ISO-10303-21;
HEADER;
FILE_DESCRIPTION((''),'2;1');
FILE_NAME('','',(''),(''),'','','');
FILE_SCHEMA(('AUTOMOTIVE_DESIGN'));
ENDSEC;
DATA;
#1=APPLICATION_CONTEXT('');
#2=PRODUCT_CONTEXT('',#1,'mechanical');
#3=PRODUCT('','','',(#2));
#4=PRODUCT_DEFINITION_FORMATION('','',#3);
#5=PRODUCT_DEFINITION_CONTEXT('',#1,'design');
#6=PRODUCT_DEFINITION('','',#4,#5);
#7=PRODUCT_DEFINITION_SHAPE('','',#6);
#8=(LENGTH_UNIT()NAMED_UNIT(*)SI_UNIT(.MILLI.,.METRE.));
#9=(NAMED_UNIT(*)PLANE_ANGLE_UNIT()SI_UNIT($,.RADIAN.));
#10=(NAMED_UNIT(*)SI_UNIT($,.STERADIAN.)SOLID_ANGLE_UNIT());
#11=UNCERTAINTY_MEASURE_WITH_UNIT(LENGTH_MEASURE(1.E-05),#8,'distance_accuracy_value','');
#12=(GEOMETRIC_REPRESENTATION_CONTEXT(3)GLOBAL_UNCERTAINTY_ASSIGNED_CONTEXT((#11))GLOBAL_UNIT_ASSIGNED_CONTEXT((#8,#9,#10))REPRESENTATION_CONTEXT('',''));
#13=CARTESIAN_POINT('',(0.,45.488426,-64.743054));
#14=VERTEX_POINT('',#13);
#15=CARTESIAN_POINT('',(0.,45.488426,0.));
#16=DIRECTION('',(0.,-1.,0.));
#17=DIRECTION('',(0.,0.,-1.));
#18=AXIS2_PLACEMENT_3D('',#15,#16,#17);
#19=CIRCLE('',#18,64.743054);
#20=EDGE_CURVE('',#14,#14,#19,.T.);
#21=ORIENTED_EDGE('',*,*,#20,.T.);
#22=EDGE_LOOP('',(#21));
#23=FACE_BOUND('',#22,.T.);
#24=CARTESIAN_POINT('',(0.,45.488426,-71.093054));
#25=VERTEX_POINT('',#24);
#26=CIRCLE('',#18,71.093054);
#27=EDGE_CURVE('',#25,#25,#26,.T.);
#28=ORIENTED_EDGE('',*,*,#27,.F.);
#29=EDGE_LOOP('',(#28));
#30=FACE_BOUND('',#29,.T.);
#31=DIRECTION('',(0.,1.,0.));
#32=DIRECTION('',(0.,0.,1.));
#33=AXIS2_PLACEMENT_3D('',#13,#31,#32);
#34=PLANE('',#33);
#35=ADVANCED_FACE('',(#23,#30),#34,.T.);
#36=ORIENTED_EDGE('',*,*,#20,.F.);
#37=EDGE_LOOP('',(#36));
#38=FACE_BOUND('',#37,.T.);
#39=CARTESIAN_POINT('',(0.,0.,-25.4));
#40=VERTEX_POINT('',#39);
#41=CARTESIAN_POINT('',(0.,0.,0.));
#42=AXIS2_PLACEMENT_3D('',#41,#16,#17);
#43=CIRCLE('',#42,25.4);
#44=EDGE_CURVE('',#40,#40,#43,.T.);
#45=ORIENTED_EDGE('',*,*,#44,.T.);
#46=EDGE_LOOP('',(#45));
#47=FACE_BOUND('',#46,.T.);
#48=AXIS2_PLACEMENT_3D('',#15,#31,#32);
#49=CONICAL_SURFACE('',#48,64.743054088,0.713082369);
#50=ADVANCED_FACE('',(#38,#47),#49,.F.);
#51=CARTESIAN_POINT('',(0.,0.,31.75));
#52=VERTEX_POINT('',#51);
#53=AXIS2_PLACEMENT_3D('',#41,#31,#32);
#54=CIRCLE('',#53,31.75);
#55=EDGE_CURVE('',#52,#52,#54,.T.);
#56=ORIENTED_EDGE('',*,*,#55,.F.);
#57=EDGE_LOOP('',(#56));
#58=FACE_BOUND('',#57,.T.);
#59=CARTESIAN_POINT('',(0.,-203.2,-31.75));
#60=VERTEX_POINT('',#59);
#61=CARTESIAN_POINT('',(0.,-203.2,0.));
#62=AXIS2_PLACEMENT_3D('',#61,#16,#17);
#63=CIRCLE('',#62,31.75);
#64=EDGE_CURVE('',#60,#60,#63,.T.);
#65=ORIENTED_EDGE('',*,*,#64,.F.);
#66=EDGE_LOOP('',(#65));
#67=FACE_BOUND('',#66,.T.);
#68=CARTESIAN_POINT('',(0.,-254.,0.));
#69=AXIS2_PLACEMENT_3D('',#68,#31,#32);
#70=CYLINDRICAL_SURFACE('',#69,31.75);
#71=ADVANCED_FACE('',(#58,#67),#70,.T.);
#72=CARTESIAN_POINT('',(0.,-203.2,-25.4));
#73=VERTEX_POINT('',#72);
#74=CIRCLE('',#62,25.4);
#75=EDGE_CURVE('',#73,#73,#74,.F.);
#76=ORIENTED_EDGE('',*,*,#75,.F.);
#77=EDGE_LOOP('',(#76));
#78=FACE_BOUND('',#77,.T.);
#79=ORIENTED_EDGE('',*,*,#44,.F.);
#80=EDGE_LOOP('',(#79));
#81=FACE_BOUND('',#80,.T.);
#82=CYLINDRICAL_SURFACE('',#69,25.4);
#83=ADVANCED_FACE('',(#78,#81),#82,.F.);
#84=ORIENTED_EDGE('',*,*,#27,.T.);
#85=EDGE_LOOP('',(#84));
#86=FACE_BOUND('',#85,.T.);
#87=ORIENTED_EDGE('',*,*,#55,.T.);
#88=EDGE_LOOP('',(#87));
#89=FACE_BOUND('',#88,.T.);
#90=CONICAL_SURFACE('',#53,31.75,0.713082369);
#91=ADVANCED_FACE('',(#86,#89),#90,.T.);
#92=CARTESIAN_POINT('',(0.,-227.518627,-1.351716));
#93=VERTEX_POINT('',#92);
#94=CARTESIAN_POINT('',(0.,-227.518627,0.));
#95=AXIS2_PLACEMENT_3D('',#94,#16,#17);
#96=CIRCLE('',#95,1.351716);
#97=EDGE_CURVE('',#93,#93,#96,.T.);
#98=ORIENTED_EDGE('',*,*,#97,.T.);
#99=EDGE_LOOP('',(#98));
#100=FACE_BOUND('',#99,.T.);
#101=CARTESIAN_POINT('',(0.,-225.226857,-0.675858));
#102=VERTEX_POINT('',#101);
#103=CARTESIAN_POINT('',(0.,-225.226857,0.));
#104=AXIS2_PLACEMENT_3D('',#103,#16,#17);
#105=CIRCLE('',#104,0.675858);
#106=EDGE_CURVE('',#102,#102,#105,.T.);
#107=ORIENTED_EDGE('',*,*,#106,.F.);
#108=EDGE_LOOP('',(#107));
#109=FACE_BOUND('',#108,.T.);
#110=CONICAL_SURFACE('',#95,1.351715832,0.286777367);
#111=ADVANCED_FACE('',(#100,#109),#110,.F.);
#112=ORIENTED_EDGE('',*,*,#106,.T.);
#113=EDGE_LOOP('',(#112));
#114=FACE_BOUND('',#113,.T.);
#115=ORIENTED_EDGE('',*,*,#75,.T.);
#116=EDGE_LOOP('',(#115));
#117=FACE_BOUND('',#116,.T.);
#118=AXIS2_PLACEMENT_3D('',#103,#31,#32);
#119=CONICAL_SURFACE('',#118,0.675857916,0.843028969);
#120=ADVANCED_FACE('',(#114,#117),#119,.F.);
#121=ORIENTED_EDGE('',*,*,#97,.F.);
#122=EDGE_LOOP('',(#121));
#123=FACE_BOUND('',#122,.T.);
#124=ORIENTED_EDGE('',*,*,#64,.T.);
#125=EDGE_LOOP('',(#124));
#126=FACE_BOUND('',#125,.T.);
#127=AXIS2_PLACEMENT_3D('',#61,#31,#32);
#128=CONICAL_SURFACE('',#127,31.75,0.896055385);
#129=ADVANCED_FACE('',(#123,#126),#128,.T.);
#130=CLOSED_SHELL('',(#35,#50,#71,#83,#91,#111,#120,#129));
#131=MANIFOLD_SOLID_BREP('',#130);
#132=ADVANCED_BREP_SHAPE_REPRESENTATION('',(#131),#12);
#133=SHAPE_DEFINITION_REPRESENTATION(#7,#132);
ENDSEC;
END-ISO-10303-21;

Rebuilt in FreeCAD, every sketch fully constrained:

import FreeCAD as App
import Part
import Sketcher

V = App.Vector
Q = App.Units.Quantity


def add_polygon(sketch, points):
    """Adds a closed chain of lines whose ends are joined by coincident constraints."""
    first, n = sketch.GeometryCount, len(points)
    for a, b in zip(points, points[1:] + points[:1]):
        sketch.addGeometry(Part.LineSegment(App.Vector(*a, 0), App.Vector(*b, 0)), False)
    for i in range(n):
        sketch.addConstraint(Sketcher.Constraint("Coincident", first + i, 2, first + (i + 1) % n, 1))

doc = App.newDocument("Part")
body = doc.addObject("PartDesign::Body", "Body")

# Sketch on XZ plane
sketch1 = doc.addObject("Sketcher::SketchObject", "Sketch")
body.addObject(sketch1)
sketch1.AttachmentSupport = (doc.XZ_Plane, [""])
sketch1.MapMode = "FlatFace"
sketch1.addGeometry([
    Part.Circle(V(0, 0, 0), V(0, 0, 1), 32),
    Part.Circle(V(0, 0, 0), V(0, 0, 1), 25),
], False)
sketch1.addConstraint([
    Sketcher.Constraint("Coincident", 0, 3, -1, 1),
    Sketcher.Constraint("Coincident", 1, 3, -1, 1),
    Sketcher.Constraint("Diameter", 1, Q("2 in")),
    Sketcher.Constraint("Diameter", 0, Q("2.5 in")),
])
pad1 = doc.addObject("PartDesign::Pad", "Pad")
body.addObject(pad1)
pad1.Profile = sketch1
pad1.Length = Q("10 in")

# Sketch on YZ plane
sketch2 = doc.addObject("Sketcher::SketchObject", "Sketch001")
body.addObject(sketch2)
sketch2.AttachmentSupport = (doc.YZ_Plane, [""])
sketch2.MapMode = "FlatFace"
add_polygon(sketch2, [(0, -32), (45, -71), (45, -65), (0, -25)])  # lines 0-3
sketch2.addConstraint([
    Sketcher.Constraint("Vertical", 1),
    Sketcher.Constraint("Vertical", 3),
    Sketcher.Constraint("PointOnObject", 2, 2, -2),
    Sketcher.Constraint("Parallel", 0, 2),
    Sketcher.Constraint("DistanceY", 2, 2, -1, 1, Q("1 in")),
    Sketcher.Constraint("DistanceY", 1, 1, 1, 2, Q("0.25 in")),
    Sketcher.Constraint("Distance", 0, 60.142105),
    Sketcher.Constraint("DistanceX", -1, 1, 0, 2, 45.488426),
])
revolution = doc.addObject("PartDesign::Revolution", "Revolution")
body.addObject(revolution)
revolution.Profile = sketch2
revolution.ReferenceAxis = (sketch2, ["H_Axis"])
revolution.Angle = 360

# Sketch on XZ plane
sketch3 = doc.addObject("Sketcher::SketchObject", "Sketch002")
body.addObject(sketch3)
sketch3.AttachmentSupport = (doc.XZ_Plane, [""])
sketch3.MapMode = "FlatFace"
sketch3.AttachmentOffset = App.Placement(V(0, 0, 10 * 25.4), App.Rotation())
sketch3.addGeometry(Part.Circle(V(0, 0, 0), V(0, 0, 1), 47), False)
sketch3.addConstraint([
    Sketcher.Constraint("Coincident", 0, 3, -1, 1),
    Sketcher.Constraint("Diameter", 0, 93.611896),
])
pocket1 = doc.addObject("PartDesign::Pocket", "Pocket")
body.addObject(pocket1)
pocket1.Profile = sketch3
pocket1.Length = Q("2 in")

# Sketch on YZ plane
sketch4 = doc.addObject("Sketcher::SketchObject", "Sketch003")
body.addObject(sketch4)
sketch4.AttachmentSupport = (doc.YZ_Plane, [""])
sketch4.MapMode = "FlatFace"
add_polygon(sketch4, [(-203.2, 25.4), (-203.2, 31.8), (-227.5, 1.4), (-225.2, 0.7)])  # lines 0-3
sketch4.addConstraint([
    Sketcher.Constraint("Vertical", 0),
    Sketcher.Constraint("DistanceX", 0, 2, -1, 1, Q("8 in")),
    Sketcher.Constraint("DistanceY", -1, 1, 3, 2, Q("1 in")),
    Sketcher.Constraint("DistanceY", 0, 1, 0, 2, Q("0.25 in")),
    Sketcher.Constraint("Distance", 1, 38.928798),
    Sketcher.Constraint("Distance", 2, 2.38935),
    Sketcher.Constraint("DistanceX", 1, 2, 2, 2, 2.29177),
    Sketcher.Constraint("Distance", 3, 33.112923),
])
revolution2 = doc.addObject("PartDesign::Revolution", "Revolution001")
body.addObject(revolution2)
revolution2.Profile = sketch4
revolution2.ReferenceAxis = (sketch4, ["H_Axis"])
revolution2.Angle = 360

doc.recompute()
